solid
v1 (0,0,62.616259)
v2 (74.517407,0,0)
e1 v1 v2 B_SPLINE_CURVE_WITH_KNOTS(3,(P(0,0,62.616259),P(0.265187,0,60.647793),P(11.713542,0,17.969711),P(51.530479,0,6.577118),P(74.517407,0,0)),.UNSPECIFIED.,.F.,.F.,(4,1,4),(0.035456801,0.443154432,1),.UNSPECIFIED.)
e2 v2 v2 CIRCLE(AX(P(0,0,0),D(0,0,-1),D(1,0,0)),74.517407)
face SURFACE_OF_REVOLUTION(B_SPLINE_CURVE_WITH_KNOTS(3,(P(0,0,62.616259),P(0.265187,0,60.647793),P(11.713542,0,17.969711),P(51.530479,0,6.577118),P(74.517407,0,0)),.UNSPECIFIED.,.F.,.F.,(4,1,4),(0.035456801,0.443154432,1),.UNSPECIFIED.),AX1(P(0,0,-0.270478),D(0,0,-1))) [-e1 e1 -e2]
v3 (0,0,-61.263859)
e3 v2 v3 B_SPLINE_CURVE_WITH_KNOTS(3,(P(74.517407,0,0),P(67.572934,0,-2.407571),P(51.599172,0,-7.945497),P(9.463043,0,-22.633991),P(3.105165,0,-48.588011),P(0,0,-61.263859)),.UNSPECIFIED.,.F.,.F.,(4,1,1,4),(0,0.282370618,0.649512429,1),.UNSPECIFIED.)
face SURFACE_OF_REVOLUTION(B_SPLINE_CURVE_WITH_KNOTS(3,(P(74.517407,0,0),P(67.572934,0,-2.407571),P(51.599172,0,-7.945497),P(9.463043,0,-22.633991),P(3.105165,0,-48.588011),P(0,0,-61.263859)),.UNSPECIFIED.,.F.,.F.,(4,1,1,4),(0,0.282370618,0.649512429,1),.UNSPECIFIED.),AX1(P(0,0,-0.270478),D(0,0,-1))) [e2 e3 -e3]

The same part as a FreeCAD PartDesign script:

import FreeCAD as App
import Part
import Sketcher

V = App.Vector

doc = App.newDocument("Part")
body = doc.addObject("PartDesign::Body", "Body")

# Sketch on XZ plane
sketch1 = body.newObject("Sketcher::SketchObject", "Sketch")
sketch1.AttachmentSupport = (doc.getObject("XZ_Plane"), [""])
sketch1.MapMode = "FlatFace"
sketch1.addGeometry(Part.BSplineCurve([V(0, 62.616259, 0), V(0.265187, 60.647793, 0), V(11.713542, 17.969711, 0), V(51.530479, 6.577118, 0), V(74.517407, 0, 0)], [4, 1, 4], [0.035456801, 0.443154432, 1], False, 3, [1, 1, 1, 1, 1], False), False)
sketch1.addGeometry(Part.LineSegment(V(0, 62.616259, 0), V(0, -61.263859, 0)), False)
sketch1.addGeometry(Part.BSplineCurve([V(74.517407, 0, 0), V(67.572934, -2.407571, 0), V(51.599172, -7.945497, 0), V(9.463043, -22.633991, 0), V(3.105165, -48.588011, 0), V(0, -61.263859, 0)], [4, 1, 1, 4], [0, 0.282370618, 0.649512429, 1], False, 3, [1, 1, 1, 1, 1, 1], False), False)
sketch1.addConstraint(Sketcher.Constraint("Block", 0))
sketch1.addConstraint(Sketcher.Constraint("Block", 2))
sketch1.addConstraint(Sketcher.Constraint("Coincident", 0, 1, 1, 1))
sketch1.addConstraint(Sketcher.Constraint("Coincident", 1, 2, 2, 2))
revolution = body.newObject("PartDesign::Revolution", "Revolution")
revolution.Profile = sketch1
revolution.ReferenceAxis = (sketch1, ["V_Axis"])
revolution.Angle = 360

doc.recompute()
